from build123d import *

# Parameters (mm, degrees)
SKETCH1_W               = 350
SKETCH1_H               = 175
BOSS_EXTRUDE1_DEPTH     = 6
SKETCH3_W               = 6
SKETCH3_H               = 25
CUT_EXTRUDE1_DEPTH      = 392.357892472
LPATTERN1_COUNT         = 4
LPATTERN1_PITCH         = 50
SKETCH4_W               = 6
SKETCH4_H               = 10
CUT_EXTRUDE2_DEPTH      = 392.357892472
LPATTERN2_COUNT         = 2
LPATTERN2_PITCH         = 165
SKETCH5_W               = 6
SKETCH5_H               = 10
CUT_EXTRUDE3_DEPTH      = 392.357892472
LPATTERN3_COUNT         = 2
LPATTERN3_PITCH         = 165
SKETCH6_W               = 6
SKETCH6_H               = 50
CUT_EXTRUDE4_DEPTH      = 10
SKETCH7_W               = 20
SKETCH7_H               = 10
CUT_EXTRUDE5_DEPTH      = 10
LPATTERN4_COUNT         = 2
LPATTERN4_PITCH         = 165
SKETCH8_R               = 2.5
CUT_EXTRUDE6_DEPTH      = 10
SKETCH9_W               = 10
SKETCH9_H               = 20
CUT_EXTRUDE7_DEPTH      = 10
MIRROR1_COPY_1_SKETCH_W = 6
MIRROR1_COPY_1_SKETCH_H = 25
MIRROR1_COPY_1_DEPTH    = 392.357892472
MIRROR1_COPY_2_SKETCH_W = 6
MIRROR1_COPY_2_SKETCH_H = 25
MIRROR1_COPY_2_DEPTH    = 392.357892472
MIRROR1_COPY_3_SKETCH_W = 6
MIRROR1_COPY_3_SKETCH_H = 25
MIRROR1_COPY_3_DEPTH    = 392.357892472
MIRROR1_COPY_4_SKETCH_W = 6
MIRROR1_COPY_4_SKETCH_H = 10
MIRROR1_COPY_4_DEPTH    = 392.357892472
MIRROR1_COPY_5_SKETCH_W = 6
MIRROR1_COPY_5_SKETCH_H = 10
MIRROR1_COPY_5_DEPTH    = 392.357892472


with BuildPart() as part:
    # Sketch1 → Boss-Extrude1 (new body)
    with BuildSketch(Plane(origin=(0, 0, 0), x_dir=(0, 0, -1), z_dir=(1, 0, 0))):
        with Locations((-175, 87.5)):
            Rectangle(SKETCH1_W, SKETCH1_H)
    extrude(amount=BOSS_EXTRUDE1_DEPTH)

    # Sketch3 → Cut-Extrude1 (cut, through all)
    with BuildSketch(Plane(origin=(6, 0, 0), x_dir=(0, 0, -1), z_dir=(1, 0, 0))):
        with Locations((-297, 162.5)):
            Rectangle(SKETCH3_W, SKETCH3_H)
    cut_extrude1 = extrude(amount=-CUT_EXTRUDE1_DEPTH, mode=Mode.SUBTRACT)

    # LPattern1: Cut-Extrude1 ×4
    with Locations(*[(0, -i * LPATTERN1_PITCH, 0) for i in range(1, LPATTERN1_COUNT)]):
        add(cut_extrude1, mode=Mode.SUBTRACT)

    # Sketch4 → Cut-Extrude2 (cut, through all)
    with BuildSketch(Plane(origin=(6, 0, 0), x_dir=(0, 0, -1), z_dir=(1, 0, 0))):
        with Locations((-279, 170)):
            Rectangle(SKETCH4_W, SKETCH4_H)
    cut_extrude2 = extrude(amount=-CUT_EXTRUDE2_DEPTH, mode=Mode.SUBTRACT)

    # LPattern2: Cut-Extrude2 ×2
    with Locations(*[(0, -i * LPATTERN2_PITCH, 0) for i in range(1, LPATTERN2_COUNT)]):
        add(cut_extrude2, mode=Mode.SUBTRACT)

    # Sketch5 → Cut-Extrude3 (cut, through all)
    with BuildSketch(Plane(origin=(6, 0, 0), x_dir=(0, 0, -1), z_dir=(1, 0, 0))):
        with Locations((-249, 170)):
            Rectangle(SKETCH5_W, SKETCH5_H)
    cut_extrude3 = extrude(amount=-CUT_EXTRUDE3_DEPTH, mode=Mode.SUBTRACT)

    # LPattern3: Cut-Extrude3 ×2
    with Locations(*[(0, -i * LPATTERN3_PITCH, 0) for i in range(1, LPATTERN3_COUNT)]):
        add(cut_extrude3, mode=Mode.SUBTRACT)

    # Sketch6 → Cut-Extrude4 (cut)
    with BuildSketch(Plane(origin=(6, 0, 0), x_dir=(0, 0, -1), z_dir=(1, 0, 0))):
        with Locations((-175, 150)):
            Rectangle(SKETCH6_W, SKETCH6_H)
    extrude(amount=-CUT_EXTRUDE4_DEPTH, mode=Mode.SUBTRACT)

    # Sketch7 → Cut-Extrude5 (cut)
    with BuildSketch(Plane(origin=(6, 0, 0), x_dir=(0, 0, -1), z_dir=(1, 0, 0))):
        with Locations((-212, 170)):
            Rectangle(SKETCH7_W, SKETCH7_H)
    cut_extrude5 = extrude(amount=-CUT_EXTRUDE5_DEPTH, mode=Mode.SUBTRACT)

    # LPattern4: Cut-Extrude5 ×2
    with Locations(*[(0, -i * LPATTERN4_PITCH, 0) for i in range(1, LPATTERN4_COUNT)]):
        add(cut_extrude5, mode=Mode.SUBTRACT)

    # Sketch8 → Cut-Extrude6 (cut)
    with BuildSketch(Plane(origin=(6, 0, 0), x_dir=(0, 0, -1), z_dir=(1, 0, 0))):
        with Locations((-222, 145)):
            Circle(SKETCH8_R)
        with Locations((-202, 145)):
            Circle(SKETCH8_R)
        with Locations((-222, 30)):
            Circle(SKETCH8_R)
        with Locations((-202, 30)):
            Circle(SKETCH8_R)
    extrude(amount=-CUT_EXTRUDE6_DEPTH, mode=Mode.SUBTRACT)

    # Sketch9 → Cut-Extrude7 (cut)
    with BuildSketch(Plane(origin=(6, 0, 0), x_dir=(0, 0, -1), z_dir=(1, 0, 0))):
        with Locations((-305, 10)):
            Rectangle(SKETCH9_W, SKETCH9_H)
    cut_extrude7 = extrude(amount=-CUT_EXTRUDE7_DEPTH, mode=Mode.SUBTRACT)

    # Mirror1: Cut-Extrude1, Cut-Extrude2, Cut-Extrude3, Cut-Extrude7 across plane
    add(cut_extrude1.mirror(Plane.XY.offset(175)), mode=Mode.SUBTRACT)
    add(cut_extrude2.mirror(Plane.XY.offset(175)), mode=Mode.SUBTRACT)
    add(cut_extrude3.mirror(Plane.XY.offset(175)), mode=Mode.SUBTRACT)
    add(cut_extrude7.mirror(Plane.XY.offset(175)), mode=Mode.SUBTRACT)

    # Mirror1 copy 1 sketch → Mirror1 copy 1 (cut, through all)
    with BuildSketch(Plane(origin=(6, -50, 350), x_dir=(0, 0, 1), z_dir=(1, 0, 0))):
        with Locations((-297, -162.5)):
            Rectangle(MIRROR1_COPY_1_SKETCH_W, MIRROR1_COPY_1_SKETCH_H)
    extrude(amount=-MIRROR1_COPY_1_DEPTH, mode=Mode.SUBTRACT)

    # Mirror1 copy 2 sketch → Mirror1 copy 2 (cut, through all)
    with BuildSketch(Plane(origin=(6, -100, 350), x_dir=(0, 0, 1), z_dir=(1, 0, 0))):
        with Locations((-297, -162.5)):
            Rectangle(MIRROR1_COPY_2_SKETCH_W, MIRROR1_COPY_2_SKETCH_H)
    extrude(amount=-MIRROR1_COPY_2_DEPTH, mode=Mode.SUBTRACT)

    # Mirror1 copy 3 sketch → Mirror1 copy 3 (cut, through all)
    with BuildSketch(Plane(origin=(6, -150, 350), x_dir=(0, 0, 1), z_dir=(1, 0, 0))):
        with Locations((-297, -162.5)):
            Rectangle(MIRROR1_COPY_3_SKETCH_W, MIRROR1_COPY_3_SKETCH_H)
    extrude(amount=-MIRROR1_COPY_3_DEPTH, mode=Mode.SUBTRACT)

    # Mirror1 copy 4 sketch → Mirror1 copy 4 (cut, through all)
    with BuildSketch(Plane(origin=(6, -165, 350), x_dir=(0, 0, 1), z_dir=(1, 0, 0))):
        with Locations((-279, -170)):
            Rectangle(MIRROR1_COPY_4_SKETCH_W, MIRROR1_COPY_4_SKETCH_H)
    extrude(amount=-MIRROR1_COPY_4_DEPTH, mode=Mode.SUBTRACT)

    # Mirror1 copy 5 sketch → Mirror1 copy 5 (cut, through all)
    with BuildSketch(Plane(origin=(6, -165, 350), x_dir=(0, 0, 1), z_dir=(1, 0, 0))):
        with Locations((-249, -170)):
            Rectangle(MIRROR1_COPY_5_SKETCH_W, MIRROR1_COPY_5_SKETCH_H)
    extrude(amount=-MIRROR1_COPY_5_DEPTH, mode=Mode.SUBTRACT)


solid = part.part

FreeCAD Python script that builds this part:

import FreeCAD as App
import Part
import Sketcher
from FreeCAD import Vector


def add_polygon(sketch, points):
    """Adds a closed chain of lines whose ends are joined by coincident constraints."""
    first, n = sketch.GeometryCount, len(points)
    for a, b in zip(points, points[1:] + points[:1]):
        sketch.addGeometry(Part.LineSegment(App.Vector(*a, 0), App.Vector(*b, 0)), False)
    for i in range(n):
        sketch.addConstraint(Sketcher.Constraint("Coincident", first + i, 2, first + (i + 1) % n, 1))

doc = App.newDocument("Part")
body = doc.addObject("PartDesign::Body", "Body")

# Sketch on YZ plane
sketch1 = body.newObject("Sketcher::SketchObject", "Sketch")
sketch1.AttachmentSupport = (doc.getObject("YZ_Plane"), [""])
sketch1.MapMode = "FlatFace"
add_polygon(sketch1, [(175, 350), (0, 350), (0, 0), (175, 0)])  # lines 0-3
sketch1.addConstraint(Sketcher.Constraint("Horizontal", 0))
sketch1.addConstraint(Sketcher.Constraint("Vertical", 1))
sketch1.addConstraint(Sketcher.Constraint("Horizontal", 2))
sketch1.addConstraint(Sketcher.Constraint("Vertical", 3))
sketch1.addConstraint(Sketcher.Constraint("Coincident", 1, 2, -1, 1))
sketch1.addConstraint(Sketcher.Constraint("DistanceX", 0, 2, 0, 1, 175.0))
sketch1.addConstraint(Sketcher.Constraint("DistanceY", 1, 2, 1, 1, 350.0))
pad1 = body.newObject("PartDesign::Pad", "Pad")
pad1.Profile = sketch1
pad1.Length = 6

# Sketch on YZ plane
sketch2 = body.newObject("Sketcher::SketchObject", "Sketch001")
sketch2.AttachmentSupport = (doc.getObject("YZ_Plane"), [""])
sketch2.MapMode = "FlatFace"
sketch2.AttachmentOffset = App.Placement(Vector(0, 0, 6), App.Rotation())
add_polygon(sketch2, [(175, 300), (150, 300), (150, 294), (175, 294)])  # lines 0-3
sketch2.addConstraint(Sketcher.Constraint("Horizontal", 0))
sketch2.addConstraint(Sketcher.Constraint("Vertical", 1))
sketch2.addConstraint(Sketcher.Constraint("Horizontal", 2))
sketch2.addConstraint(Sketcher.Constraint("Vertical", 3))
sketch2.addConstraint(Sketcher.Constraint("DistanceX", 0, 2, 0, 1, 25.0))
sketch2.addConstraint(Sketcher.Constraint("DistanceY", 1, 2, 1, 1, 6.0))
sketch2.addConstraint(Sketcher.Constraint("DistanceX", -1, 1, 0, 2, 150.0))
sketch2.addConstraint(Sketcher.Constraint("DistanceY", -1, 1, 0, 2, 300.0))
pocket1 = body.newObject("PartDesign::Pocket", "Pocket")
pocket1.Profile = sketch2
pocket1.Type = "ThroughAll"
doc.recompute()

linearpattern = body.newObject("PartDesign::LinearPattern", "LinearPattern")
linearpattern.Originals = [pocket1]
linearpattern.Direction = (doc.getObject("Y_Axis"), [""])
linearpattern.Mode = "offset"
linearpattern.Offset = 50
linearpattern.Occurrences = 4
linearpattern.Reversed = True
body.Tip = linearpattern

# Sketch on YZ plane
sketch3 = body.newObject("Sketcher::SketchObject", "Sketch002")
sketch3.AttachmentSupport = (doc.getObject("YZ_Plane"), [""])
sketch3.MapMode = "FlatFace"
sketch3.AttachmentOffset = App.Placement(Vector(0, 0, 6), App.Rotation())
add_polygon(sketch3, [(175, 282), (165, 282), (165, 276), (175, 276)])  # lines 0-3
sketch3.addConstraint(Sketcher.Constraint("Horizontal", 0))
sketch3.addConstraint(Sketcher.Constraint("Vertical", 1))
sketch3.addConstraint(Sketcher.Constraint("Horizontal", 2))
sketch3.addConstraint(Sketcher.Constraint("Vertical", 3))
sketch3.addConstraint(Sketcher.Constraint("DistanceX", 0, 2, 0, 1, 10.0))
sketch3.addConstraint(Sketcher.Constraint("DistanceY", 1, 2, 1, 1, 6.0))
sketch3.addConstraint(Sketcher.Constraint("DistanceX", -1, 1, 0, 2, 165.0))
sketch3.addConstraint(Sketcher.Constraint("DistanceY", -1, 1, 0, 2, 282.0))
pocket2 = body.newObject("PartDesign::Pocket", "Pocket001")
pocket2.Profile = sketch3
pocket2.Type = "ThroughAll"
doc.recompute()

linearpattern2 = body.newObject("PartDesign::LinearPattern", "LinearPattern001")
linearpattern2.Originals = [pocket2]
linearpattern2.Direction = (doc.getObject("Y_Axis"), [""])
linearpattern2.Mode = "offset"
linearpattern2.Offset = 165
linearpattern2.Occurrences = 2
linearpattern2.Reversed = True
body.Tip = linearpattern2

# Sketch on YZ plane
sketch4 = body.newObject("Sketcher::SketchObject", "Sketch003")
sketch4.AttachmentSupport = (doc.getObject("YZ_Plane"), [""])
sketch4.MapMode = "FlatFace"
sketch4.AttachmentOffset = App.Placement(Vector(0, 0, 6), App.Rotation())
add_polygon(sketch4, [(175, 252), (165, 252), (165, 246), (175, 246)])  # lines 0-3
sketch4.addConstraint(Sketcher.Constraint("Horizontal", 0))
sketch4.addConstraint(Sketcher.Constraint("Vertical", 1))
sketch4.addConstraint(Sketcher.Constraint("Horizontal", 2))
sketch4.addConstraint(Sketcher.Constraint("Vertical", 3))
sketch4.addConstraint(Sketcher.Constraint("DistanceX", 0, 2, 0, 1, 10.0))
sketch4.addConstraint(Sketcher.Constraint("DistanceY", 1, 2, 1, 1, 6.0))
sketch4.addConstraint(Sketcher.Constraint("DistanceX", -1, 1, 0, 2, 165.0))
sketch4.addConstraint(Sketcher.Constraint("DistanceY", -1, 1, 0, 2, 252.0))
pocket3 = body.newObject("PartDesign::Pocket", "Pocket002")
pocket3.Profile = sketch4
pocket3.Type = "ThroughAll"
doc.recompute()

linearpattern3 = body.newObject("PartDesign::LinearPattern", "LinearPattern002")
linearpattern3.Originals = [pocket3]
linearpattern3.Direction = (doc.getObject("Y_Axis"), [""])
linearpattern3.Mode = "offset"
linearpattern3.Offset = 165
linearpattern3.Occurrences = 2
linearpattern3.Reversed = True
body.Tip = linearpattern3

# Sketch on YZ plane
sketch5 = body.newObject("Sketcher::SketchObject", "Sketch004")
sketch5.AttachmentSupport = (doc.getObject("YZ_Plane"), [""])
sketch5.MapMode = "FlatFace"
sketch5.AttachmentOffset = App.Placement(Vector(0, 0, 6), App.Rotation())
add_polygon(sketch5, [(175, 178), (125, 178), (125, 172), (175, 172)])  # lines 0-3
sketch5.addConstraint(Sketcher.Constraint("Horizontal", 0))
sketch5.addConstraint(Sketcher.Constraint("Vertical", 1))
sketch5.addConstraint(Sketcher.Constraint("Horizontal", 2))
sketch5.addConstraint(Sketcher.Constraint("Vertical", 3))
sketch5.addConstraint(Sketcher.Constraint("DistanceX", 0, 2, 0, 1, 50.0))
sketch5.addConstraint(Sketcher.Constraint("DistanceY", 1, 2, 1, 1, 6.0))
sketch5.addConstraint(Sketcher.Constraint("DistanceX", -1, 1, 0, 2, 125.0))
sketch5.addConstraint(Sketcher.Constraint("DistanceY", -1, 1, 0, 2, 178.0))
pocket4 = body.newObject("PartDesign::Pocket", "Pocket003")
pocket4.Profile = sketch5
pocket4.Length = 10

# Sketch on YZ plane
sketch6 = body.newObject("Sketcher::SketchObject", "Sketch005")
sketch6.AttachmentSupport = (doc.getObject("YZ_Plane"), [""])
sketch6.MapMode = "FlatFace"
sketch6.AttachmentOffset = App.Placement(Vector(0, 0, 6), App.Rotation())
add_polygon(sketch6, [(175, 222), (165, 222), (165, 202), (175, 202)])  # lines 0-3
sketch6.addConstraint(Sketcher.Constraint("Horizontal", 0))
sketch6.addConstraint(Sketcher.Constraint("Vertical", 1))
sketch6.addConstraint(Sketcher.Constraint("Horizontal", 2))
sketch6.addConstraint(Sketcher.Constraint("Vertical", 3))
sketch6.addConstraint(Sketcher.Constraint("DistanceX", 0, 2, 0, 1, 10.0))
sketch6.addConstraint(Sketcher.Constraint("DistanceY", 1, 2, 1, 1, 20.0))
sketch6.addConstraint(Sketcher.Constraint("DistanceX", -1, 1, 0, 2, 165.0))
sketch6.addConstraint(Sketcher.Constraint("DistanceY", -1, 1, 0, 2, 222.0))
pocket5 = body.newObject("PartDesign::Pocket", "Pocket004")
pocket5.Profile = sketch6
pocket5.Length = 10
doc.recompute()

linearpattern4 = body.newObject("PartDesign::LinearPattern", "LinearPattern003")
linearpattern4.Originals = [pocket5]
linearpattern4.Direction = (doc.getObject("Y_Axis"), [""])
linearpattern4.Mode = "offset"
linearpattern4.Offset = 165
linearpattern4.Occurrences = 2
linearpattern4.Reversed = True
body.Tip = linearpattern4

# Sketch on YZ plane
sketch7 = body.newObject("Sketcher::SketchObject", "Sketch006")
sketch7.AttachmentSupport = (doc.getObject("YZ_Plane"), [""])
sketch7.MapMode = "FlatFace"
sketch7.AttachmentOffset = App.Placement(Vector(0, 0, 6), App.Rotation())
sketch7.addGeometry(Part.Circle(Vector(145, 222, 0), Vector(0, 0, 1), 2.5), False)
sketch7.addGeometry(Part.Circle(Vector(145, 202, 0), Vector(0, 0, 1), 2.5), False)
sketch7.addGeometry(Part.Circle(Vector(30, 222, 0), Vector(0, 0, 1), 2.5), False)
sketch7.addGeometry(Part.Circle(Vector(30, 202, 0), Vector(0, 0, 1), 2.5), False)
sketch7.addConstraint(Sketcher.Constraint("Equal", 0, 1))
sketch7.addConstraint(Sketcher.Constraint("Equal", 1, 2))
sketch7.addConstraint(Sketcher.Constraint("Equal", 2, 3))
sketch7.addConstraint(Sketcher.Constraint("Horizontal", 0, 3, 2, 3))
sketch7.addConstraint(Sketcher.Constraint("Horizontal", 1, 3, 3, 3))
sketch7.addConstraint(Sketcher.Constraint("Vertical", 0, 3, 1, 3))
sketch7.addConstraint(Sketcher.Constraint("Vertical", 2, 3, 3, 3))
sketch7.addConstraint(Sketcher.Constraint("Diameter", 0, 5.0))
sketch7.addConstraint(Sketcher.Constraint("DistanceX", -1, 1, 0, 3, 145.0))
sketch7.addConstraint(Sketcher.Constraint("DistanceY", -1, 1, 0, 3, 222.0))
sketch7.addConstraint(Sketcher.Constraint("DistanceY", -1, 1, 1, 3, 202.0))
sketch7.addConstraint(Sketcher.Constraint("DistanceX", -1, 1, 2, 3, 30.0))
pocket6 = body.newObject("PartDesign::Pocket", "Pocket005")
pocket6.Profile = sketch7
pocket6.Length = 10

# Sketch on YZ plane
sketch8 = body.newObject("Sketcher::SketchObject", "Sketch007")
sketch8.AttachmentSupport = (doc.getObject("YZ_Plane"), [""])
sketch8.MapMode = "FlatFace"
sketch8.AttachmentOffset = App.Placement(Vector(0, 0, 6), App.Rotation())
add_polygon(sketch8, [(20, 310), (0, 310), (0, 300), (20, 300)])  # lines 0-3
sketch8.addConstraint(Sketcher.Constraint("Horizontal", 0))
sketch8.addConstraint(Sketcher.Constraint("Vertical", 1))
sketch8.addConstraint(Sketcher.Constraint("Horizontal", 2))
sketch8.addConstraint(Sketcher.Constraint("Vertical", 3))
sketch8.addConstraint(Sketcher.Constraint("PointOnObject", 0, 2, -2))
sketch8.addConstraint(Sketcher.Constraint("DistanceX", 0, 2, 0, 1, 20.0))
sketch8.addConstraint(Sketcher.Constraint("DistanceY", 1, 2, 1, 1, 10.0))
sketch8.addConstraint(Sketcher.Constraint("DistanceY", -1, 1, 0, 2, 310.0))
pocket7 = body.newObject("PartDesign::Pocket", "Pocket006")
pocket7.Profile = sketch8
pocket7.Length = 10
doc.recompute()

datumplane = body.newObject("PartDesign::Plane", "DatumPlane")
datumplane.AttachmentSupport = (doc.getObject("XY_Plane"), [""])
datumplane.MapMode = "FlatFace"
datumplane.AttachmentOffset = App.Placement(Vector(0, 0, 175), App.Rotation())
mirrored = body.newObject("PartDesign::Mirrored", "Mirrored")
mirrored.Originals = [pocket1, pocket2, pocket3, pocket7]
mirrored.MirrorPlane = (datumplane, [""])
body.Tip = mirrored

# Sketch on YZ plane
sketch9 = body.newObject("Sketcher::SketchObject", "Sketch008")
sketch9.AttachmentSupport = (doc.getObject("YZ_Plane"), [""])
sketch9.MapMode = "FlatFace"
sketch9.AttachmentOffset = App.Placement(Vector(0, 0, 6), App.Rotation())
add_polygon(sketch9, [(100, 50), (125, 50), (125, 56), (100, 56)])  # lines 0-3
sketch9.addConstraint(Sketcher.Constraint("Horizontal", 0))
sketch9.addConstraint(Sketcher.Constraint("Vertical", 1))
sketch9.addConstraint(Sketcher.Constraint("Horizontal", 2))
sketch9.addConstraint(Sketcher.Constraint("Vertical", 3))
sketch9.addConstraint(Sketcher.Constraint("DistanceX", 0, 1, 0, 2, 25.0))
sketch9.addConstraint(Sketcher.Constraint("DistanceY", 1, 1, 1, 2, 6.0))
sketch9.addConstraint(Sketcher.Constraint("DistanceX", -1, 1, 0, 2, 125.0))
sketch9.addConstraint(Sketcher.Constraint("DistanceY", -1, 1, 0, 2, 50.0))
pocket8 = body.newObject("PartDesign::Pocket", "Pocket007")
pocket8.Profile = sketch9
pocket8.Type = "ThroughAll"

# Sketch on YZ plane
sketch10 = body.newObject("Sketcher::SketchObject", "Sketch009")
sketch10.AttachmentSupport = (doc.getObject("YZ_Plane"), [""])
sketch10.MapMode = "FlatFace"
sketch10.AttachmentOffset = App.Placement(Vector(0, 0, 6), App.Rotation())
add_polygon(sketch10, [(50, 50), (75, 50), (75, 56), (50, 56)])  # lines 0-3
sketch10.addConstraint(Sketcher.Constraint("Horizontal", 0))
sketch10.addConstraint(Sketcher.Constraint("Vertical", 1))
sketch10.addConstraint(Sketcher.Constraint("Horizontal", 2))
sketch10.addConstraint(Sketcher.Constraint("Vertical", 3))
sketch10.addConstraint(Sketcher.Constraint("DistanceX", 0, 1, 0, 2, 25.0))
sketch10.addConstraint(Sketcher.Constraint("DistanceY", 1, 1, 1, 2, 6.0))
sketch10.addConstraint(Sketcher.Constraint("DistanceX", -1, 1, 0, 2, 75.0))
sketch10.addConstraint(Sketcher.Constraint("DistanceY", -1, 1, 0, 2, 50.0))
pocket9 = body.newObject("PartDesign::Pocket", "Pocket008")
pocket9.Profile = sketch10
pocket9.Type = "ThroughAll"

# Sketch on YZ plane
sketch11 = body.newObject("Sketcher::SketchObject", "Sketch010")
sketch11.AttachmentSupport = (doc.getObject("YZ_Plane"), [""])
sketch11.MapMode = "FlatFace"
sketch11.AttachmentOffset = App.Placement(Vector(0, 0, 6), App.Rotation())
add_polygon(sketch11, [(0, 50), (25, 50), (25, 56), (0, 56)])  # lines 0-3
sketch11.addConstraint(Sketcher.Constraint("Horizontal", 0))
sketch11.addConstraint(Sketcher.Constraint("Vertical", 1))
sketch11.addConstraint(Sketcher.Constraint("Horizontal", 2))
sketch11.addConstraint(Sketcher.Constraint("Vertical", 3))
sketch11.addConstraint(Sketcher.Constraint("PointOnObject", 2, 2, -2))
sketch11.addConstraint(Sketcher.Constraint("DistanceX", 0, 1, 0, 2, 25.0))
sketch11.addConstraint(Sketcher.Constraint("DistanceY", 1, 1, 1, 2, 6.0))
sketch11.addConstraint(Sketcher.Constraint("DistanceY", -1, 1, 0, 2, 50.0))
pocket10 = body.newObject("PartDesign::Pocket", "Pocket009")
pocket10.Profile = sketch11
pocket10.Type = "ThroughAll"

# Sketch on YZ plane
sketch12 = body.newObject("Sketcher::SketchObject", "Sketch011")
sketch12.AttachmentSupport = (doc.getObject("YZ_Plane"), [""])
sketch12.MapMode = "FlatFace"
sketch12.AttachmentOffset = App.Placement(Vector(0, 0, 6), App.Rotation())
add_polygon(sketch12, [(0, 68), (10, 68), (10, 74), (0, 74)])  # lines 0-3
sketch12.addConstraint(Sketcher.Constraint("Horizontal", 0))
sketch12.addConstraint(Sketcher.Constraint("Vertical", 1))
sketch12.addConstraint(Sketcher.Constraint("Horizontal", 2))
sketch12.addConstraint(Sketcher.Constraint("Vertical", 3))
sketch12.addConstraint(Sketcher.Constraint("PointOnObject", 2, 2, -2))
sketch12.addConstraint(Sketcher.Constraint("DistanceX", 0, 1, 0, 2, 10.0))
sketch12.addConstraint(Sketcher.Constraint("DistanceY", 1, 1, 1, 2, 6.0))
sketch12.addConstraint(Sketcher.Constraint("DistanceY", -1, 1, 0, 2, 68.0))
pocket11 = body.newObject("PartDesign::Pocket", "Pocket010")
pocket11.Profile = sketch12
pocket11.Type = "ThroughAll"

# Sketch on YZ plane
sketch13 = body.newObject("Sketcher::SketchObject", "Sketch012")
sketch13.AttachmentSupport = (doc.getObject("YZ_Plane"), [""])
sketch13.MapMode = "FlatFace"
sketch13.AttachmentOffset = App.Placement(Vector(0, 0, 6), App.Rotation())
add_polygon(sketch13, [(0, 98), (10, 98), (10, 104), (0, 104)])  # lines 0-3
sketch13.addConstraint(Sketcher.Constraint("Horizontal", 0))
sketch13.addConstraint(Sketcher.Constraint("Vertical", 1))
sketch13.addConstraint(Sketcher.Constraint("Horizontal", 2))
sketch13.addConstraint(Sketcher.Constraint("Vertical", 3))
sketch13.addConstraint(Sketcher.Constraint("PointOnObject", 2, 2, -2))
sketch13.addConstraint(Sketcher.Constraint("DistanceX", 0, 1, 0, 2, 10.0))
sketch13.addConstraint(Sketcher.Constraint("DistanceY", 1, 1, 1, 2, 6.0))
sketch13.addConstraint(Sketcher.Constraint("DistanceY", -1, 1, 0, 2, 98.0))
pocket12 = body.newObject("PartDesign::Pocket", "Pocket011")
pocket12.Profile = sketch13
pocket12.Type = "ThroughAll"

doc.recompute()
